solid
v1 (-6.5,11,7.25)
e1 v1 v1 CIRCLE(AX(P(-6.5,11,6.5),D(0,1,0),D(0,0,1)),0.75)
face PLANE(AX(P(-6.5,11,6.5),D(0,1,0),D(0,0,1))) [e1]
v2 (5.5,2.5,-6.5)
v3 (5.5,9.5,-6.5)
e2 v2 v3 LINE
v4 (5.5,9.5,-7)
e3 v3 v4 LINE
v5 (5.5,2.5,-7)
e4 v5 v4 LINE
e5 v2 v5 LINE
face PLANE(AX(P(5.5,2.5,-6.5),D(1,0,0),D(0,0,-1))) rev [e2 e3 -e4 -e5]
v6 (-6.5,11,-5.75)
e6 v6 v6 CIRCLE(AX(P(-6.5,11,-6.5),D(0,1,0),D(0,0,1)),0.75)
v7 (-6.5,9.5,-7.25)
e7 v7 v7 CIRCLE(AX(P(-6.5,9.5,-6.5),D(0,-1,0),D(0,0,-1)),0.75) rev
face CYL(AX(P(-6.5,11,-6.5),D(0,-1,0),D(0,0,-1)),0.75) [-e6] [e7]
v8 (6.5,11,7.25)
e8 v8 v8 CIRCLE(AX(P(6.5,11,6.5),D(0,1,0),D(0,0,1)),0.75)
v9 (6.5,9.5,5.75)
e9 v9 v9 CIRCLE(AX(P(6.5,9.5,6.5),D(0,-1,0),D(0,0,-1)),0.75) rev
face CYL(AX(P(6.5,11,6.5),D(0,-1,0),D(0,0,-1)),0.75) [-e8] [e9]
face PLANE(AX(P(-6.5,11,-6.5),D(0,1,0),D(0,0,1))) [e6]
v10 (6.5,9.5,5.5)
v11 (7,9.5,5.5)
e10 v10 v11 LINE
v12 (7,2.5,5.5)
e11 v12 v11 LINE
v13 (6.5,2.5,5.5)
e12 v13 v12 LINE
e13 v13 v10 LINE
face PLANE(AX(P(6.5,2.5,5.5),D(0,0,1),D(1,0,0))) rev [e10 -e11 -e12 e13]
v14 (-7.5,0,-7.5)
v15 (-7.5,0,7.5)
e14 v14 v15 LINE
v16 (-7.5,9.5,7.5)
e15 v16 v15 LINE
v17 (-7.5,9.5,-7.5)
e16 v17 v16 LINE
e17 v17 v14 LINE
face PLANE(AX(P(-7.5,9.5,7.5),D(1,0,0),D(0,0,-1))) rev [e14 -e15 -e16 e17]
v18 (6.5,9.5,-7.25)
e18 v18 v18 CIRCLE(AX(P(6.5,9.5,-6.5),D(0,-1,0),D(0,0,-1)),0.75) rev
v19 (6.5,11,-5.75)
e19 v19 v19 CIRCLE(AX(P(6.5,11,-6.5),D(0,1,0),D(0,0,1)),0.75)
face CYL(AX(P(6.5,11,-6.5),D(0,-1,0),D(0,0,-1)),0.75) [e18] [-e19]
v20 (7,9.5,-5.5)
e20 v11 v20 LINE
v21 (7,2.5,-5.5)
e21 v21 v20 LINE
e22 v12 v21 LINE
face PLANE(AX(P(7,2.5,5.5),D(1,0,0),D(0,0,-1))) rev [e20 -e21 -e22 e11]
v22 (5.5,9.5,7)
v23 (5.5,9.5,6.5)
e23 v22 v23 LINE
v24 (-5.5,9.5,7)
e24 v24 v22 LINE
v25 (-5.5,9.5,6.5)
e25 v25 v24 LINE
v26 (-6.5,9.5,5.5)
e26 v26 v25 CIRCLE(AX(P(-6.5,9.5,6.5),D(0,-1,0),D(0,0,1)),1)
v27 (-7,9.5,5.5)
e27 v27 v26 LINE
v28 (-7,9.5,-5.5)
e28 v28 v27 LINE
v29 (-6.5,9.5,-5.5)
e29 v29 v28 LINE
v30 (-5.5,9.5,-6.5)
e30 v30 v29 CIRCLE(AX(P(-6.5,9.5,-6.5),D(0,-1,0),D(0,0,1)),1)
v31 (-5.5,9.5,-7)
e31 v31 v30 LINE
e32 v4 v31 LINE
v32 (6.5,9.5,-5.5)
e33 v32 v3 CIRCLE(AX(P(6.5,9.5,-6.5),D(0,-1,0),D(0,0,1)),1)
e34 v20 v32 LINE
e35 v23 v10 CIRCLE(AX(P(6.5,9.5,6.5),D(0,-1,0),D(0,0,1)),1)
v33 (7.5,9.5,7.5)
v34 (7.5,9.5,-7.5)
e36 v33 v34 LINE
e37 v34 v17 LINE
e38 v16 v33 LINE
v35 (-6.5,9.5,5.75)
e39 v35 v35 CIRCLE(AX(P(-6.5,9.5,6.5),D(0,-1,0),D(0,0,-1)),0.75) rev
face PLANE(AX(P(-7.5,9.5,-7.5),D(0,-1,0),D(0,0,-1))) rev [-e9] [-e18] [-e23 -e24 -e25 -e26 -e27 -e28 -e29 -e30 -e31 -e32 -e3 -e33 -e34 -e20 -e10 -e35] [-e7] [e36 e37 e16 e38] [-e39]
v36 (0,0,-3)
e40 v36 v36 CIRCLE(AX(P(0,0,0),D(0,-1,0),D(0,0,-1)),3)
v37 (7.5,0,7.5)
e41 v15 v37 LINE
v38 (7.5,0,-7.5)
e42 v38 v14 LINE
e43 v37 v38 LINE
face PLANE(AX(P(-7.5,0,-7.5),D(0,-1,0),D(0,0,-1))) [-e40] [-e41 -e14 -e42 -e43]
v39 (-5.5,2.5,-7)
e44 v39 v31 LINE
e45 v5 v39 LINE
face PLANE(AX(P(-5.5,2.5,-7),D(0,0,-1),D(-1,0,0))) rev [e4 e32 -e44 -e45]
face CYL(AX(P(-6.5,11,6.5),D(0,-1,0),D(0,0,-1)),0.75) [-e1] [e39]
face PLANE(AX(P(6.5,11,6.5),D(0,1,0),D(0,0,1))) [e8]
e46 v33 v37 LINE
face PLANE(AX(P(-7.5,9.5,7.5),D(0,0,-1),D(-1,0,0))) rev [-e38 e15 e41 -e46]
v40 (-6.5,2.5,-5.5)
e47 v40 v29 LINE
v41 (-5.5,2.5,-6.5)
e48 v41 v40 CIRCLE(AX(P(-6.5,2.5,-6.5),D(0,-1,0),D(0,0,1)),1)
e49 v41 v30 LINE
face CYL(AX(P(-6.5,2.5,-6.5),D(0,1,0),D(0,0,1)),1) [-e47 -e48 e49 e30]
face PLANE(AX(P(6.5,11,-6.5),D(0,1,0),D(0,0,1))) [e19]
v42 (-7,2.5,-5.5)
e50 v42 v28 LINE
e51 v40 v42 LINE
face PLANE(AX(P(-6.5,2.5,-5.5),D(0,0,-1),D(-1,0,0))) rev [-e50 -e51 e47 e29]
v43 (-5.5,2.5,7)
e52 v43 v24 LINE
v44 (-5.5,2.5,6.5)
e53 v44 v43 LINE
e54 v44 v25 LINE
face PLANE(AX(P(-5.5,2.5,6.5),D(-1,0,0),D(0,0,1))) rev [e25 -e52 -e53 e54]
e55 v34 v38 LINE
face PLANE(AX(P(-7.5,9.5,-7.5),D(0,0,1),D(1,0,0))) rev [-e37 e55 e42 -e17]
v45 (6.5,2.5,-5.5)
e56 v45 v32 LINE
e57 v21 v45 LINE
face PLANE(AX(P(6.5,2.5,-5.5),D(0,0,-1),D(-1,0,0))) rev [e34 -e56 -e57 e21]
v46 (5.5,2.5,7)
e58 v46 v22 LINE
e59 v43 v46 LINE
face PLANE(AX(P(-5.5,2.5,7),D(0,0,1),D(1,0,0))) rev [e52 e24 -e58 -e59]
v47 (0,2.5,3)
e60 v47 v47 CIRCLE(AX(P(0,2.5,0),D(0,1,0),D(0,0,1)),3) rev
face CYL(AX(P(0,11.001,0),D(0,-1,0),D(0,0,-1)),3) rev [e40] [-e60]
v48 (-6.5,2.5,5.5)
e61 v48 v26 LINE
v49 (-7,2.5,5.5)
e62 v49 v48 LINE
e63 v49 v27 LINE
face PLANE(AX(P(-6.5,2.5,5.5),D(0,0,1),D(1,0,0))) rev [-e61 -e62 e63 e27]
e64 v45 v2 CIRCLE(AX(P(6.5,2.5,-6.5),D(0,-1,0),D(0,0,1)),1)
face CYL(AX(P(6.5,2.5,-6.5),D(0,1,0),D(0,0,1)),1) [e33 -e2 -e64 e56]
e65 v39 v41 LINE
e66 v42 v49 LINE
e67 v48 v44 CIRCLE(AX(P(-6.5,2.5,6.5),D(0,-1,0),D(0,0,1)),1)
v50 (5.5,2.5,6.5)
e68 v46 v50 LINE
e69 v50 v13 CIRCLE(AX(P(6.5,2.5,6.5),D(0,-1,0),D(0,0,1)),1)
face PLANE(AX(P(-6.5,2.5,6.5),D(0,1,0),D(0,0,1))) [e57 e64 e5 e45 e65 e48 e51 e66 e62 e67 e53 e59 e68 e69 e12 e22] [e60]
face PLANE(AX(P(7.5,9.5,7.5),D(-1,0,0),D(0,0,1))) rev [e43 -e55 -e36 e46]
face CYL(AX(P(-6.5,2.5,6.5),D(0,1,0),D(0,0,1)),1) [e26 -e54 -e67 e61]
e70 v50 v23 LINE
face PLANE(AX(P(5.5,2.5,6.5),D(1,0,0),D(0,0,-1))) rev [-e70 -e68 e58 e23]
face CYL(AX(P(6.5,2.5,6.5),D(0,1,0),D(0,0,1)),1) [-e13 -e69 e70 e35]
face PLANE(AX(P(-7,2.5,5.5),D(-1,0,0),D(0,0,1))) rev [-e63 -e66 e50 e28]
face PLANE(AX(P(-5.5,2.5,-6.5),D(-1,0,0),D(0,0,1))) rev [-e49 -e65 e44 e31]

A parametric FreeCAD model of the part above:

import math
import FreeCAD as App
import Part
import Sketcher


def add_polygon(sketch, points):
    """Adds a closed chain of lines whose ends are joined by coincident constraints."""
    first, n = sketch.GeometryCount, len(points)
    for a, b in zip(points, points[1:] + points[:1]):
        sketch.addGeometry(Part.LineSegment(App.Vector(*a, 0), App.Vector(*b, 0)), False)
    for i in range(n):
        sketch.addConstraint(Sketcher.Constraint("Coincident", first + i, 2, first + (i + 1) % n, 1))

doc = App.newDocument("Part")
body = doc.addObject("PartDesign::Body", "Body")

# Sketch on XZ plane
sketch1 = body.newObject("Sketcher::SketchObject", "Sketch")
sketch1.AttachmentSupport = (doc.getObject("XZ_Plane"), [""])
sketch1.MapMode = "FlatFace"
add_polygon(sketch1, [(-7.5, -7.5), (-7.5, 7.5), (7.5, 7.5), (7.5, -7.5)])  # lines 0-3
sketch1.addConstraint(Sketcher.Constraint("Vertical", 0))
sketch1.addConstraint(Sketcher.Constraint("Horizontal", 1))
sketch1.addConstraint(Sketcher.Constraint("Vertical", 2))
sketch1.addConstraint(Sketcher.Constraint("Horizontal", 3))
sketch1.addConstraint(Sketcher.Constraint("Symmetric", 0, 2, 2, 2, -1, 1))
sketch1.addConstraint(Sketcher.Constraint("Equal", 3, 0))
sketch1.addConstraint(Sketcher.Constraint("DistanceX", 1, 1, 1, 2, 15.0))
pad1 = body.newObject("PartDesign::Pad", "Pad")
pad1.Profile = sketch1
pad1.Length = 9.5
pad1.Reversed = True

# Sketch on XZ plane
sketch2 = body.newObject("Sketcher::SketchObject", "Sketch001")
sketch2.AttachmentSupport = (doc.getObject("XZ_Plane"), [""])
sketch2.MapMode = "FlatFace"
sketch2.AttachmentOffset = App.Placement(App.Vector(0, 0, -9.5), App.Rotation())
sketch2.addGeometry(Part.LineSegment(App.Vector(-6.5, -5.5, 0), App.Vector(-7, -5.5, 0)), False)
sketch2.addGeometry(Part.LineSegment(App.Vector(-7, -5.5, 0), App.Vector(-7, 5.5, 0)), False)
sketch2.addGeometry(Part.LineSegment(App.Vector(-7, 5.5, 0), App.Vector(-6.5, 5.5, 0)), False)
sketch2.addGeometry(Part.ArcOfCircle(Part.Circle(App.Vector(-6.5, 6.5, 0), App.Vector(0, 0, 1), 1), math.radians(-90), math.radians(0)), False)
sketch2.addGeometry(Part.LineSegment(App.Vector(-5.5, 6.5, 0), App.Vector(-5.5, 7, 0)), False)
sketch2.addGeometry(Part.LineSegment(App.Vector(-5.5, 7, 0), App.Vector(5.5, 7, 0)), False)
sketch2.addGeometry(Part.LineSegment(App.Vector(5.5, 7, 0), App.Vector(5.5, 6.5, 0)), False)
sketch2.addGeometry(Part.ArcOfCircle(Part.Circle(App.Vector(6.5, 6.5, 0), App.Vector(0, 0, 1), 1), math.radians(-180), math.radians(-90)), False)
sketch2.addGeometry(Part.LineSegment(App.Vector(6.5, 5.5, 0), App.Vector(7, 5.5, 0)), False)
sketch2.addGeometry(Part.LineSegment(App.Vector(7, 5.5, 0), App.Vector(7, -5.5, 0)), False)
sketch2.addGeometry(Part.LineSegment(App.Vector(7, -5.5, 0), App.Vector(6.5, -5.5, 0)), False)
sketch2.addGeometry(Part.ArcOfCircle(Part.Circle(App.Vector(6.5, -6.5, 0), App.Vector(0, 0, 1), 1), math.radians(90), math.radians(180)), False)
sketch2.addGeometry(Part.LineSegment(App.Vector(5.5, -6.5, 0), App.Vector(5.5, -7, 0)), False)
sketch2.addGeometry(Part.LineSegment(App.Vector(5.5, -7, 0), App.Vector(-5.5, -7, 0)), False)
sketch2.addGeometry(Part.LineSegment(App.Vector(-5.5, -7, 0), App.Vector(-5.5, -6.5, 0)), False)
sketch2.addGeometry(Part.ArcOfCircle(Part.Circle(App.Vector(-6.5, -6.5, 0), App.Vector(0, 0, 1), 1), math.radians(0), math.radians(90)), False)
sketch2.addConstraint(Sketcher.Constraint("Coincident", 0, 2, 1, 1))
sketch2.addConstraint(Sketcher.Constraint("Coincident", 1, 2, 2, 1))
sketch2.addConstraint(Sketcher.Constraint("Tangent", 2, 2, 3, 1))
sketch2.addConstraint(Sketcher.Constraint("Tangent", 3, 2, 4, 1))
sketch2.addConstraint(Sketcher.Constraint("Coincident", 4, 2, 5, 1))
sketch2.addConstraint(Sketcher.Constraint("Coincident", 5, 2, 6, 1))
sketch2.addConstraint(Sketcher.Constraint("Tangent", 6, 2, 7, 1))
sketch2.addConstraint(Sketcher.Constraint("Tangent", 7, 2, 8, 1))
sketch2.addConstraint(Sketcher.Constraint("Coincident", 8, 2, 9, 1))
sketch2.addConstraint(Sketcher.Constraint("Coincident", 9, 2, 10, 1))
sketch2.addConstraint(Sketcher.Constraint("Tangent", 10, 2, 11, 1))
sketch2.addConstraint(Sketcher.Constraint("Tangent", 11, 2, 12, 1))
sketch2.addConstraint(Sketcher.Constraint("Coincident", 12, 2, 13, 1))
sketch2.addConstraint(Sketcher.Constraint("Coincident", 13, 2, 14, 1))
sketch2.addConstraint(Sketcher.Constraint("Tangent", 14, 2, 15, 1))
sketch2.addConstraint(Sketcher.Constraint("Tangent", 15, 2, 0, 1))
sketch2.addConstraint(Sketcher.Constraint("Horizontal", 0))
sketch2.addConstraint(Sketcher.Constraint("Vertical", 1))
sketch2.addConstraint(Sketcher.Constraint("Horizontal", 2))
sketch2.addConstraint(Sketcher.Constraint("Vertical", 4))
sketch2.addConstraint(Sketcher.Constraint("Horizontal", 5))
sketch2.addConstraint(Sketcher.Constraint("Vertical", 6))
sketch2.addConstraint(Sketcher.Constraint("Horizontal", 8))
sketch2.addConstraint(Sketcher.Constraint("Vertical", 9))
sketch2.addConstraint(Sketcher.Constraint("Horizontal", 10))
sketch2.addConstraint(Sketcher.Constraint("Vertical", 12))
sketch2.addConstraint(Sketcher.Constraint("Horizontal", 13))
sketch2.addConstraint(Sketcher.Constraint("Vertical", 14))
sketch2.addConstraint(Sketcher.Constraint("Equal", 3, 7))
sketch2.addConstraint(Sketcher.Constraint("Equal", 7, 11))
sketch2.addConstraint(Sketcher.Constraint("Equal", 11, 15))
sketch2.addConstraint(Sketcher.Constraint("Symmetric", 3, 3, 11, 3, -1, 1))
sketch2.addConstraint(Sketcher.Constraint("Symmetric", 7, 3, 15, 3, -1, 1))
sketch2.addConstraint(Sketcher.Constraint("Symmetric", 3, 3, 7, 3, -2))
sketch2.addConstraint(Sketcher.Constraint("Equal", 2, 8))
sketch2.addConstraint(Sketcher.Constraint("Equal", 13, 1))
sketch2.addConstraint(Sketcher.Constraint("Equal", 10, 4))
sketch2.addConstraint(Sketcher.Constraint("Equal", 6, 12))
sketch2.addConstraint(Sketcher.Constraint("Radius", 3, 1.0))
sketch2.addConstraint(Sketcher.Constraint("DistanceX", 5, 1, 5, 2, 11.0))
sketch2.addConstraint(Sketcher.Constraint("DistanceX", 0, 2, 0, 1, 0.5))
pocket1 = body.newObject("PartDesign::Pocket", "Pocket")
pocket1.Profile = sketch2
pocket1.Length = 7
pocket1.Reversed = True

# Sketch on XZ plane
sketch3 = body.newObject("Sketcher::SketchObject", "Sketch002")
sketch3.AttachmentSupport = (doc.getObject("XZ_Plane"), [""])
sketch3.MapMode = "FlatFace"
sketch3.AttachmentOffset = App.Placement(App.Vector(0, 0, -9.5), App.Rotation())
sketch3.addGeometry(Part.Circle(App.Vector(-6.5, -6.5, 0), App.Vector(0, 0, 1), 0.75), False)
sketch3.addGeometry(Part.Circle(App.Vector(-6.5, 6.5, 0), App.Vector(0, 0, 1), 0.75), False)
sketch3.addGeometry(Part.Circle(App.Vector(6.5, 6.5, 0), App.Vector(0, 0, 1), 0.75), False)
sketch3.addGeometry(Part.Circle(App.Vector(6.5, -6.5, 0), App.Vector(0, 0, 1), 0.75), False)
sketch3.addConstraint(Sketcher.Constraint("Equal", 0, 1))
sketch3.addConstraint(Sketcher.Constraint("Equal", 1, 2))
sketch3.addConstraint(Sketcher.Constraint("Equal", 2, 3))
sketch3.addConstraint(Sketcher.Constraint("Symmetric", 0, 3, 2, 3, -1, 1))
sketch3.addConstraint(Sketcher.Constraint("Symmetric", 1, 3, 3, 3, -1, 1))
sketch3.addConstraint(Sketcher.Constraint("Symmetric", 1, 3, 2, 3, -2))
sketch3.addConstraint(Sketcher.Constraint("Diameter", 0, 1.5))
sketch3.addConstraint(Sketcher.Constraint("DistanceY", 0, 3, 1, 3, 13.0))
sketch3.addConstraint(Sketcher.Constraint("DistanceX", 1, 3, 2, 3, 13.0))
pad2 = body.newObject("PartDesign::Pad", "Pad001")
pad2.Profile = sketch3
pad2.Length = 1.5
pad2.Reversed = True

# Sketch on XZ plane
sketch4 = body.newObject("Sketcher::SketchObject", "Sketch003")
sketch4.AttachmentSupport = (doc.getObject("XZ_Plane"), [""])
sketch4.MapMode = "FlatFace"
sketch4.addGeometry(Part.Circle(App.Vector(0, 0, 0), App.Vector(0, 0, 1), 3), False)
sketch4.addConstraint(Sketcher.Constraint("Coincident", 0, 3, -1, 1))
sketch4.addConstraint(Sketcher.Constraint("Diameter", 0, 6.0))
pocket2 = body.newObject("PartDesign::Pocket", "Pocket001")
pocket2.Profile = sketch4
pocket2.Type = "UpToFirst"

doc.recompute()
